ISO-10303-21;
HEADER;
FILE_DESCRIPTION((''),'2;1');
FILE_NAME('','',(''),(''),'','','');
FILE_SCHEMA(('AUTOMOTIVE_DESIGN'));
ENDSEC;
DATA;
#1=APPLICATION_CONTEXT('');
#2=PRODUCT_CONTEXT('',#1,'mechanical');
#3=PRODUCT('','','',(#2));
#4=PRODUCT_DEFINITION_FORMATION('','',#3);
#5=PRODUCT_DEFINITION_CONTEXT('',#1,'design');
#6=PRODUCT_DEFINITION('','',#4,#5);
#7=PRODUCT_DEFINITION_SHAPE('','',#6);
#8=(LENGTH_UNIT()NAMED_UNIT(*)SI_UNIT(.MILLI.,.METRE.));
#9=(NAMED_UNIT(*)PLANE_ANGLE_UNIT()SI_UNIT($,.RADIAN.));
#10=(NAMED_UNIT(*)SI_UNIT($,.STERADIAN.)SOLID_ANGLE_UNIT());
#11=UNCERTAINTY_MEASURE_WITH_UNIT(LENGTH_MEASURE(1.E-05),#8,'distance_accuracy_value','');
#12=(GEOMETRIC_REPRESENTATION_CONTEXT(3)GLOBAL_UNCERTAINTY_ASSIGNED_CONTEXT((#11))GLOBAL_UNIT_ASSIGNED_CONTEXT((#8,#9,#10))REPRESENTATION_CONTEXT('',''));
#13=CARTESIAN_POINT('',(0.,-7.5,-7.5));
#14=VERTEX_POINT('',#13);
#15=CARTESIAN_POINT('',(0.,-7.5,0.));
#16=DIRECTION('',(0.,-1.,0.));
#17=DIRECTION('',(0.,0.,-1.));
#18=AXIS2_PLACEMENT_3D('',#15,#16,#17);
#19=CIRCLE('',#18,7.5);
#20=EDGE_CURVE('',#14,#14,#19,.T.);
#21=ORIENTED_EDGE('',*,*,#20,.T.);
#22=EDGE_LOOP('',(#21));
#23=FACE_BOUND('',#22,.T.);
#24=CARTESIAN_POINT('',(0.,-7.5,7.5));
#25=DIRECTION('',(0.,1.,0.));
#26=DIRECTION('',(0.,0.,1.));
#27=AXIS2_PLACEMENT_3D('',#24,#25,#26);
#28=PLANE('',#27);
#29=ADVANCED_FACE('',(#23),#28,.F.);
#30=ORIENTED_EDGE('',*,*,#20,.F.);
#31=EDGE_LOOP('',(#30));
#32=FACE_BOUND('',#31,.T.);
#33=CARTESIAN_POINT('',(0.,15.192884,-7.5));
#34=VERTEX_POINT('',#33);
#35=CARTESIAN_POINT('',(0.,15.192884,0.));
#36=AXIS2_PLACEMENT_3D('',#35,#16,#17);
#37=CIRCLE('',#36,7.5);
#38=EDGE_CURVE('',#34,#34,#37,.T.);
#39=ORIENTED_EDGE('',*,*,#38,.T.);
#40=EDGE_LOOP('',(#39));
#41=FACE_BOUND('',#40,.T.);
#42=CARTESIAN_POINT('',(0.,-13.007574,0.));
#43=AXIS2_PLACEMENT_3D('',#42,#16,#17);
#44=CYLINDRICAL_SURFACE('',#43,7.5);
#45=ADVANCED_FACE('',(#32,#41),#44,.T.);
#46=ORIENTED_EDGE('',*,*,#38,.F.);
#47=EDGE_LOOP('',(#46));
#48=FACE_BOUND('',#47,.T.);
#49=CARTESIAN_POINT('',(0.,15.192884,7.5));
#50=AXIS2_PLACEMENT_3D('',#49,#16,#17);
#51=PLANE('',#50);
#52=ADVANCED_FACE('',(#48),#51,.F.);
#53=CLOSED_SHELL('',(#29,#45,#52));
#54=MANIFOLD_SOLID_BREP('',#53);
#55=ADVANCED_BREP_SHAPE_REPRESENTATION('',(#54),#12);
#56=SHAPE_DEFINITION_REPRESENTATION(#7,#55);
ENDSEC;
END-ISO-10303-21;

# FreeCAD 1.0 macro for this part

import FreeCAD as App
import Part
import Sketcher
Q = App.Units.Quantity


def add_polygon(sketch, points):
    """Adds a closed chain of lines whose ends are joined by coincident constraints."""
    first, n = sketch.GeometryCount, len(points)
    for a, b in zip(points, points[1:] + points[:1]):
        sketch.addGeometry(Part.LineSegment(App.Vector(*a, 0), App.Vector(*b, 0)), False)
    for i in range(n):
        sketch.addConstraint(Sketcher.Constraint("Coincident", first + i, 2, first + (i + 1) % n, 1))

doc = App.newDocument("Part")
body = doc.addObject("PartDesign::Body", "Body")

# Sketch on YZ plane
sketch1 = body.newObject("Sketcher::SketchObject", "Sketch")
sketch1.AttachmentSupport = (doc.getObject("YZ_Plane"), [""])
sketch1.MapMode = "FlatFace"
add_polygon(sketch1, [(-7.5, 7.5), (-7.5, 0), (15.192884, 0), (15.192884, 7.5)])  # lines 0-3
sketch1.addConstraint(Sketcher.Constraint("Vertical", 0))
sketch1.addConstraint(Sketcher.Constraint("Horizontal", 1))
sketch1.addConstraint(Sketcher.Constraint("Vertical", 2))
sketch1.addConstraint(Sketcher.Constraint("Horizontal", 3))
sketch1.addConstraint(Sketcher.Constraint("PointOnObject", 0, 2, -1))
sketch1.addConstraint(Sketcher.Constraint("DistanceY", 0, 2, 0, 1, Q("7.5 mm")))
sketch1.addConstraint(Sketcher.Constraint("DistanceX", 0, 2, -1, 1, Q("7.5 mm")))
sketch1.addConstraint(Sketcher.Constraint("DistanceX", 1, 1, 1, 2, Q("22.692884 mm")))
revolution = body.newObject("PartDesign::Revolution", "Revolution")
revolution.Profile = sketch1
revolution.ReferenceAxis = (sketch1, ["H_Axis"])
revolution.Angle = 360

doc.recompute()
